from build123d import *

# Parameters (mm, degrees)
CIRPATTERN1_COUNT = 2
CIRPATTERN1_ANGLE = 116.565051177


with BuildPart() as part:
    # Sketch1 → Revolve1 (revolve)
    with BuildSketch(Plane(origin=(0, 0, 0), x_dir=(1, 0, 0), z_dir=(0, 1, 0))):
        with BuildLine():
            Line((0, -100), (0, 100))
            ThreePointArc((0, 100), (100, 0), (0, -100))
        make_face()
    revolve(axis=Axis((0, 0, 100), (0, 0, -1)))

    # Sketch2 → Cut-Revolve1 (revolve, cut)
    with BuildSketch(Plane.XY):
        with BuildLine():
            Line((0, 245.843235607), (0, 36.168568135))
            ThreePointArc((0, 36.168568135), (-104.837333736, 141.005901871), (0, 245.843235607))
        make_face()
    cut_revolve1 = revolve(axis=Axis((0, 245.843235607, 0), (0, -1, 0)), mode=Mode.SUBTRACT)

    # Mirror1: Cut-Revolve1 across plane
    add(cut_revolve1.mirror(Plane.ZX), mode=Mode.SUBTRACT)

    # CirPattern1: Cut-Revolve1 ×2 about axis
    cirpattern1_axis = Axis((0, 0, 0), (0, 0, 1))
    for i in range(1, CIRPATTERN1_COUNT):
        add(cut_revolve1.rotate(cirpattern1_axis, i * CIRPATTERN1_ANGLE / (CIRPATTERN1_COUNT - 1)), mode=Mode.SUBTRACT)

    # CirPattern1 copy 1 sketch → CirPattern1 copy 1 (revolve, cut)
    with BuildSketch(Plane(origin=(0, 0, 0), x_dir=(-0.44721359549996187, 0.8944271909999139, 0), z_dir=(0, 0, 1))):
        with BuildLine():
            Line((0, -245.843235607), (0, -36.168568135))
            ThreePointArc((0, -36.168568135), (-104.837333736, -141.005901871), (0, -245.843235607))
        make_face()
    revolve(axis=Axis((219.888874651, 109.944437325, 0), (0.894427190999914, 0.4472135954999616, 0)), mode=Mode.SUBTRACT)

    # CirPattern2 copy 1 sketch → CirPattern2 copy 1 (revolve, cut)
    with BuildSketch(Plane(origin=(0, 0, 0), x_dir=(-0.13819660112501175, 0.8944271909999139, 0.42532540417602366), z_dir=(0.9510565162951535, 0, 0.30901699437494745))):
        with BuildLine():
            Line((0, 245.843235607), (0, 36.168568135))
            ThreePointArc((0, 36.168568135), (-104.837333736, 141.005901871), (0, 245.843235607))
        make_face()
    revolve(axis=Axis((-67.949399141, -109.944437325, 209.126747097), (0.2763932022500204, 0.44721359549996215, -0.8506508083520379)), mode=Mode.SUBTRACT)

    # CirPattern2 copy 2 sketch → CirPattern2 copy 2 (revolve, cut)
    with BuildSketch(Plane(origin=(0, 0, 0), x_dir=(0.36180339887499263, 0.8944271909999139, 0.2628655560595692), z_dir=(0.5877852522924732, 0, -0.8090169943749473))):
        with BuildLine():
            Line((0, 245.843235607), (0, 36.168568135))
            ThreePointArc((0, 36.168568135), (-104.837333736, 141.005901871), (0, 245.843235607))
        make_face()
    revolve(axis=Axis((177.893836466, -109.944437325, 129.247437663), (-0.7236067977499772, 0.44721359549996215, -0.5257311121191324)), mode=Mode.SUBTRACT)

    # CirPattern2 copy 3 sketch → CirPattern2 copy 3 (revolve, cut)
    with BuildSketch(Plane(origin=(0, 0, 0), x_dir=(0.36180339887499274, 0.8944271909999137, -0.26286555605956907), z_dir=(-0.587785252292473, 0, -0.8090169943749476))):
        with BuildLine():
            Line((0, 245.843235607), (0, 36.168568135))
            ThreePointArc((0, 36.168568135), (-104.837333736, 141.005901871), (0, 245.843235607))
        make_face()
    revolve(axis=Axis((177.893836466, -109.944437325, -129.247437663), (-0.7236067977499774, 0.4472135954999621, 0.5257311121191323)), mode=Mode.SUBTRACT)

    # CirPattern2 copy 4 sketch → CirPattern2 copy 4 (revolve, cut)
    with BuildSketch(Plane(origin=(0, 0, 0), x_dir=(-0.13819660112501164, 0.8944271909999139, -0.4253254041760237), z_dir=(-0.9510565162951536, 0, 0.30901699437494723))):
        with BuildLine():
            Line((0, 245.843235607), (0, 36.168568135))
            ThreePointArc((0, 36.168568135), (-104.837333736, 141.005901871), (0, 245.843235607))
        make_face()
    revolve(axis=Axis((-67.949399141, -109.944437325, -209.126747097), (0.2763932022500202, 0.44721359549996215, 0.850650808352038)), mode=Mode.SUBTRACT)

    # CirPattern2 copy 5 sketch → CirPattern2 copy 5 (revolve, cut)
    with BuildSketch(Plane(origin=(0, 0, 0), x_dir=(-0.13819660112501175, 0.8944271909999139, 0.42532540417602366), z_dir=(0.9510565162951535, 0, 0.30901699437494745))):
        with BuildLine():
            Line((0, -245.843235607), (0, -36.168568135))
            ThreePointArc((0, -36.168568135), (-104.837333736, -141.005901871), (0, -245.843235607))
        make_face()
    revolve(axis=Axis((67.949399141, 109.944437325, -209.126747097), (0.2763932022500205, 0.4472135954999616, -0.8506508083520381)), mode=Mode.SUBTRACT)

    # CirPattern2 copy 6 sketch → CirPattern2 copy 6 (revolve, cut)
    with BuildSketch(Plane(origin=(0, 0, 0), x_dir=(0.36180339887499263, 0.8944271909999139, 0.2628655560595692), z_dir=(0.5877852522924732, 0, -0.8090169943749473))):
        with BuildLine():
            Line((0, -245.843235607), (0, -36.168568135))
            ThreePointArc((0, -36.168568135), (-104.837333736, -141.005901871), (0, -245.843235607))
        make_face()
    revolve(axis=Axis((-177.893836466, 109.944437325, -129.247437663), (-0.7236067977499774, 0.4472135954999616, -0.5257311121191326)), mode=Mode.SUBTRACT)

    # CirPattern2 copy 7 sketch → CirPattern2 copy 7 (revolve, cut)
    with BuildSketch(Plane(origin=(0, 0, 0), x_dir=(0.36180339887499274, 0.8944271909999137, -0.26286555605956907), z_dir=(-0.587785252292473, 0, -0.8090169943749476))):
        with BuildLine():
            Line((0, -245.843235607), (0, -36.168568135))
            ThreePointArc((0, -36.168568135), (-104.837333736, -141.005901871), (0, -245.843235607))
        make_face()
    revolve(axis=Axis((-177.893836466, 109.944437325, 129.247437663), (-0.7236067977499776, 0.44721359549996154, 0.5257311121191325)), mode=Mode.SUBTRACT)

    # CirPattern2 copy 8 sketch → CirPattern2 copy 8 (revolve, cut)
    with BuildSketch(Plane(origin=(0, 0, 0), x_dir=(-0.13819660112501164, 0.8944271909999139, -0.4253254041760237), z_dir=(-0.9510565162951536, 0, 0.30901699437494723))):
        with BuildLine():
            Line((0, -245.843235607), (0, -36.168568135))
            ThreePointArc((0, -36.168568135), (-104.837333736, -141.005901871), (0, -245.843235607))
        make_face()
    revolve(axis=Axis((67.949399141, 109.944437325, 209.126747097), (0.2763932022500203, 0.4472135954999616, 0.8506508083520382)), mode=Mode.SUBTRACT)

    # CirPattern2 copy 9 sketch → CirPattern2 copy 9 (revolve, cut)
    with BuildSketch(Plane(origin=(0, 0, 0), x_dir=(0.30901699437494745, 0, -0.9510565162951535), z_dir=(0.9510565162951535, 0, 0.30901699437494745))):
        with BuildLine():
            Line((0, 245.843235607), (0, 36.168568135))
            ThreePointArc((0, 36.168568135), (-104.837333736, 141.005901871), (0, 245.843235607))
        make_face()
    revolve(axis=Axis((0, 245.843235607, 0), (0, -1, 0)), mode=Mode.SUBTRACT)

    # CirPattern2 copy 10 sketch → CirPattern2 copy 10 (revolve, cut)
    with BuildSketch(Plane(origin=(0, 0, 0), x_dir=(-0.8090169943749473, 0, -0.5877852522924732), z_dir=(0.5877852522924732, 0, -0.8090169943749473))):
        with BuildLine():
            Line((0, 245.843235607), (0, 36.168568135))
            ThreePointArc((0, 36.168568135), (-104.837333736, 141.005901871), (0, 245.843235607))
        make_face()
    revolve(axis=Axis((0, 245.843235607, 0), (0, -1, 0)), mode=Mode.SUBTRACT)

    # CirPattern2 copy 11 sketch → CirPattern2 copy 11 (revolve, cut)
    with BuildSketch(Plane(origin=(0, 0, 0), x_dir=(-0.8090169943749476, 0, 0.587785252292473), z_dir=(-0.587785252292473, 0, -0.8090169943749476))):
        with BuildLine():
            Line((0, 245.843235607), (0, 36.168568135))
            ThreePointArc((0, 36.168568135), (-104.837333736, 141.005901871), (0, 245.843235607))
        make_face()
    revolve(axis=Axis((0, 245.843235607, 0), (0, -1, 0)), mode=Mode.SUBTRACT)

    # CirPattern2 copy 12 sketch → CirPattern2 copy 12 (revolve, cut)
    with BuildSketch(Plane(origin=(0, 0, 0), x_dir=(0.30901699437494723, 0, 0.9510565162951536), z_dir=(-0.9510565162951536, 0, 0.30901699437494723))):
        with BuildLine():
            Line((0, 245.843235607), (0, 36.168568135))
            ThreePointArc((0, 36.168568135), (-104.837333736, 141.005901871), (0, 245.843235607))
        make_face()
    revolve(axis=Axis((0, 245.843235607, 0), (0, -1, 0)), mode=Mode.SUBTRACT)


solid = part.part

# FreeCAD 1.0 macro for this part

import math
import FreeCAD as App
import Part
import Sketcher
from FreeCAD import Vector
Q = App.Units.Quantity

doc = App.newDocument("Part")
body = doc.addObject("PartDesign::Body", "Body")

# Sketch on XZ plane
sketch1 = body.newObject("Sketcher::SketchObject", "Sketch")
sketch1.AttachmentSupport = (doc.getObject("XZ_Plane"), [""])
sketch1.MapMode = "FlatFace"
sketch1.addGeometry([
    Part.LineSegment(Vector(0, -100, 0), Vector(0, 100, 0)),
    Part.ArcOfCircle(Part.Circle(Vector(0, 0, 0), Vector(0, 0, 1), 100), math.radians(-90), math.radians(90)),
], False)
sketch1.addConstraint([
    Sketcher.Constraint("Coincident", 0, 1, 1, 1),
    Sketcher.Constraint("Coincident", 1, 2, 0, 2),
    Sketcher.Constraint("Vertical", 0),
    Sketcher.Constraint("Coincident", 1, 3, -1, 1),
    Sketcher.Constraint("PointOnObject", 0, 1, -2),
    Sketcher.Constraint("Radius", 1, Q("100 mm")),
])
revolution = body.newObject("PartDesign::Revolution", "Revolution")
revolution.Profile = sketch1
revolution.ReferenceAxis = (sketch1, ["V_Axis"])
revolution.Angle = 360

# Sketch on XY plane
sketch2 = body.newObject("Sketcher::SketchObject", "Sketch001")
sketch2.AttachmentSupport = (doc.getObject("XY_Plane"), [""])
sketch2.MapMode = "FlatFace"
sketch2.addGeometry([
    Part.LineSegment(Vector(0, 36, 0), Vector(0, 246, 0)),
    Part.ArcOfCircle(Part.Circle(Vector(0, 141, 0), Vector(0, 0, 1), 105), math.radians(90), math.radians(270)),
], False)
sketch2.addConstraint([
    Sketcher.Constraint("Coincident", 0, 1, 1, 2),
    Sketcher.Constraint("Coincident", 1, 1, 0, 2),
    Sketcher.Constraint("Vertical", 0),
    Sketcher.Constraint("PointOnObject", 1, 3, -2),
    Sketcher.Constraint("PointOnObject", 0, 1, -2),
    Sketcher.Constraint("Radius", 1, Q("104.837334 mm")),
    Sketcher.Constraint("DistanceY", -1, 1, 1, 3, Q("141.005902 mm")),
])
groove = body.newObject("PartDesign::Groove", "Groove")
groove.Profile = sketch2
groove.ReferenceAxis = (sketch2, ["V_Axis"])
groove.Angle = 360
doc.recompute()

mirrored = body.newObject("PartDesign::Mirrored", "Mirrored")
mirrored.Originals = [groove]
mirrored.MirrorPlane = (doc.getObject("XZ_Plane"), [""])
body.Tip = mirrored
doc.recompute()

polarpattern = body.newObject("PartDesign::PolarPattern", "PolarPattern")
polarpattern.Originals = [groove]
polarpattern.Axis = (doc.getObject("Z_Axis"), [""])
polarpattern.Angle = 116.565051
polarpattern.Occurrences = 2
body.Tip = polarpattern

# Sketch on XY plane
sketch3 = body.newObject("Sketcher::SketchObject", "Sketch002")
sketch3.AttachmentSupport = (doc.getObject("XY_Plane"), [""])
sketch3.MapMode = "FlatFace"
sketch3.addGeometry([
    Part.LineSegment(Vector(220, 110, 0), Vector(32, 16, 0)),
    Part.ArcOfCircle(Part.Circle(Vector(126, 63, 0), Vector(0, 0, 1), 105), math.radians(-153), math.radians(27)),
], False)
sketch3.addGeometry(Part.LineSegment(Vector(32, 16, 0), Vector(220, 110, 0)), True)  # axis
sketch3.addConstraint([
    Sketcher.Constraint("Coincident", 0, 1, 1, 2),
    Sketcher.Constraint("Coincident", 1, 1, 0, 2),
    Sketcher.Constraint("Coincident", 2, 1, 1, 1),
    Sketcher.Constraint("Coincident", 2, 2, 0, 1),
    Sketcher.Constraint("Radius", 1, Q("104.837334 mm")),
    Sketcher.Constraint("DistanceX", -1, 1, 1, 1, Q("32.350151 mm")),
    Sketcher.Constraint("DistanceX", 1, 3, 0, 1, Q("93.769362 mm")),
    Sketcher.Constraint("DistanceX", 1, 1, 1, 3, Q("93.769362 mm")),
    Sketcher.Constraint("DistanceY", -1, 1, 1, 3, Q("63.059756 mm")),
])
groove2 = body.newObject("PartDesign::Groove", "Groove001")
groove2.Profile = sketch3
groove2.ReferenceAxis = (sketch3, ["Axis0"])
groove2.Angle = 360

# Sketch on an angled plane
sketch4 = body.newObject("Sketcher::SketchObject", "Sketch003")
sketch4.Placement = App.Placement(Vector(0, 0, 0), App.Rotation(Vector(-0.138196601, 0.894427191, 0.425325404), Vector(-0.276393202, -0.447213595, 0.850650808), Vector(0.951056516, 0, 0.309016994), "ZXY"))
sketch4.addGeometry([
    Part.LineSegment(Vector(0, 36, 0), Vector(0, 246, 0)),
    Part.ArcOfCircle(Part.Circle(Vector(0, 141, 0), Vector(0, 0, 1), 105), math.radians(90), math.radians(270)),
], False)
sketch4.addConstraint([
    Sketcher.Constraint("Coincident", 0, 1, 1, 2),
    Sketcher.Constraint("Coincident", 1, 1, 0, 2),
    Sketcher.Constraint("Vertical", 0),
    Sketcher.Constraint("PointOnObject", 1, 3, -2),
    Sketcher.Constraint("PointOnObject", 0, 1, -2),
    Sketcher.Constraint("Radius", 1, Q("104.837334 mm")),
    Sketcher.Constraint("DistanceY", -1, 1, 1, 3, Q("141.005902 mm")),
])
groove3 = body.newObject("PartDesign::Groove", "Groove002")
groove3.Profile = sketch4
groove3.ReferenceAxis = (sketch4, ["V_Axis"])
groove3.Angle = 360

# Sketch on an angled plane
sketch5 = body.newObject("Sketcher::SketchObject", "Sketch004")
sketch5.Placement = App.Placement(Vector(0, 0, 0), App.Rotation(Vector(0.361803399, 0.894427191, 0.262865556), Vector(0.723606797, -0.447213595, 0.525731112), Vector(0.587785252, 0, -0.809016994), "ZXY"))
sketch5.addGeometry([
    Part.LineSegment(Vector(0, 36, 0), Vector(0, 246, 0)),
    Part.ArcOfCircle(Part.Circle(Vector(0, 141, 0), Vector(0, 0, 1), 105), math.radians(90), math.radians(270)),
], False)
sketch5.addConstraint([
    Sketcher.Constraint("Coincident", 0, 1, 1, 2),
    Sketcher.Constraint("Coincident", 1, 1, 0, 2),
    Sketcher.Constraint("Vertical", 0),
    Sketcher.Constraint("PointOnObject", 1, 3, -2),
    Sketcher.Constraint("PointOnObject", 0, 1, -2),
    Sketcher.Constraint("Radius", 1, Q("104.837334 mm")),
    Sketcher.Constraint("DistanceY", -1, 1, 1, 3, Q("141.005902 mm")),
])
groove4 = body.newObject("PartDesign::Groove", "Groove003")
groove4.Profile = sketch5
groove4.ReferenceAxis = (sketch5, ["V_Axis"])
groove4.Angle = 360

# Sketch on an angled plane
sketch6 = body.newObject("Sketcher::SketchObject", "Sketch005")
sketch6.Placement = App.Placement(Vector(0, 0, 0), App.Rotation(Vector(0.361803399, 0.894427191, -0.262865556), Vector(0.723606797, -0.447213595, -0.525731112), Vector(-0.587785252, 0, -0.809016994), "ZXY"))
sketch6.addGeometry([
    Part.LineSegment(Vector(0, 36, 0), Vector(0, 246, 0)),
    Part.ArcOfCircle(Part.Circle(Vector(0, 141, 0), Vector(0, 0, 1), 105), math.radians(90), math.radians(270)),
], False)
sketch6.addConstraint([
    Sketcher.Constraint("Coincident", 0, 1, 1, 2),
    Sketcher.Constraint("Coincident", 1, 1, 0, 2),
    Sketcher.Constraint("Vertical", 0),
    Sketcher.Constraint("PointOnObject", 1, 3, -2),
    Sketcher.Constraint("PointOnObject", 0, 1, -2),
    Sketcher.Constraint("Radius", 1, Q("104.837334 mm")),
    Sketcher.Constraint("DistanceY", -1, 1, 1, 3, Q("141.005902 mm")),
])
groove5 = body.newObject("PartDesign::Groove", "Groove004")
groove5.Profile = sketch6
groove5.ReferenceAxis = (sketch6, ["V_Axis"])
groove5.Angle = 360

# Sketch on an angled plane
sketch7 = body.newObject("Sketcher::SketchObject", "Sketch006")
sketch7.Placement = App.Placement(Vector(0, 0, 0), App.Rotation(Vector(-0.138196601, 0.894427191, -0.425325404), Vector(-0.276393202, -0.447213595, -0.850650808), Vector(-0.951056516, 0, 0.309016994), "ZXY"))
sketch7.addGeometry([
    Part.LineSegment(Vector(0, 36, 0), Vector(0, 246, 0)),
    Part.ArcOfCircle(Part.Circle(Vector(0, 141, 0), Vector(0, 0, 1), 105), math.radians(90), math.radians(270)),
], False)
sketch7.addConstraint([
    Sketcher.Constraint("Coincident", 0, 1, 1, 2),
    Sketcher.Constraint("Coincident", 1, 1, 0, 2),
    Sketcher.Constraint("Vertical", 0),
    Sketcher.Constraint("PointOnObject", 1, 3, -2),
    Sketcher.Constraint("PointOnObject", 0, 1, -2),
    Sketcher.Constraint("Radius", 1, Q("104.837334 mm")),
    Sketcher.Constraint("DistanceY", -1, 1, 1, 3, Q("141.005902 mm")),
])
groove6 = body.newObject("PartDesign::Groove", "Groove005")
groove6.Profile = sketch7
groove6.ReferenceAxis = (sketch7, ["V_Axis"])
groove6.Angle = 360

# Sketch on an angled plane
sketch8 = body.newObject("Sketcher::SketchObject", "Sketch007")
sketch8.Placement = App.Placement(Vector(0, 0, 0), App.Rotation(Vector(-0.138196601, 0.894427191, 0.425325404), Vector(-0.276393202, -0.447213595, 0.850650808), Vector(0.951056516, 0, 0.309016994), "ZXY"))
sketch8.addGeometry([
    Part.LineSegment(Vector(0, -246, 0), Vector(0, -36, 0)),
    Part.ArcOfCircle(Part.Circle(Vector(0, -141, 0), Vector(0, 0, 1), 105), math.radians(90), math.radians(270)),
], False)
sketch8.addConstraint([
    Sketcher.Constraint("Coincident", 0, 1, 1, 2),
    Sketcher.Constraint("Coincident", 1, 1, 0, 2),
    Sketcher.Constraint("Vertical", 0),
    Sketcher.Constraint("PointOnObject", 1, 3, -2),
    Sketcher.Constraint("PointOnObject", 0, 1, -2),
    Sketcher.Constraint("Radius", 1, Q("104.837334 mm")),
    Sketcher.Constraint("DistanceY", 1, 3, -1, 1, Q("141.005902 mm")),
])
groove7 = body.newObject("PartDesign::Groove", "Groove006")
groove7.Profile = sketch8
groove7.ReferenceAxis = (sketch8, ["V_Axis"])
groove7.Angle = 360

# Sketch on an angled plane
sketch9 = body.newObject("Sketcher::SketchObject", "Sketch008")
sketch9.Placement = App.Placement(Vector(0, 0, 0), App.Rotation(Vector(0.361803399, 0.894427191, 0.262865556), Vector(0.723606797, -0.447213595, 0.525731112), Vector(0.587785252, 0, -0.809016994), "ZXY"))
sketch9.addGeometry([
    Part.LineSegment(Vector(0, -246, 0), Vector(0, -36, 0)),
    Part.ArcOfCircle(Part.Circle(Vector(0, -141, 0), Vector(0, 0, 1), 105), math.radians(90), math.radians(270)),
], False)
sketch9.addConstraint([
    Sketcher.Constraint("Coincident", 0, 1, 1, 2),
    Sketcher.Constraint("Coincident", 1, 1, 0, 2),
    Sketcher.Constraint("Vertical", 0),
    Sketcher.Constraint("PointOnObject", 1, 3, -2),
    Sketcher.Constraint("PointOnObject", 0, 1, -2),
    Sketcher.Constraint("Radius", 1, Q("104.837334 mm")),
    Sketcher.Constraint("DistanceY", 1, 3, -1, 1, Q("141.005902 mm")),
])
groove8 = body.newObject("PartDesign::Groove", "Groove007")
groove8.Profile = sketch9
groove8.ReferenceAxis = (sketch9, ["V_Axis"])
groove8.Angle = 360

# Sketch on an angled plane
sketch10 = body.newObject("Sketcher::SketchObject", "Sketch009")
sketch10.Placement = App.Placement(Vector(0, 0, 0), App.Rotation(Vector(0.361803399, 0.894427191, -0.262865556), Vector(0.723606797, -0.447213595, -0.525731112), Vector(-0.587785252, 0, -0.809016994), "ZXY"))
sketch10.addGeometry([
    Part.LineSegment(Vector(0, -246, 0), Vector(0, -36, 0)),
    Part.ArcOfCircle(Part.Circle(Vector(0, -141, 0), Vector(0, 0, 1), 105), math.radians(90), math.radians(270)),
], False)
sketch10.addConstraint([
    Sketcher.Constraint("Coincident", 0, 1, 1, 2),
    Sketcher.Constraint("Coincident", 1, 1, 0, 2),
    Sketcher.Constraint("Vertical", 0),
    Sketcher.Constraint("PointOnObject", 1, 3, -2),
    Sketcher.Constraint("PointOnObject", 0, 1, -2),
    Sketcher.Constraint("Radius", 1, Q("104.837334 mm")),
    Sketcher.Constraint("DistanceY", 1, 3, -1, 1, Q("141.005902 mm")),
])
groove9 = body.newObject("PartDesign::Groove", "Groove008")
groove9.Profile = sketch10
groove9.ReferenceAxis = (sketch10, ["V_Axis"])
groove9.Angle = 360

# Sketch on an angled plane
sketch11 = body.newObject("Sketcher::SketchObject", "Sketch010")
sketch11.Placement = App.Placement(Vector(0, 0, 0), App.Rotation(Vector(-0.138196601, 0.894427191, -0.425325404), Vector(-0.276393202, -0.447213595, -0.850650808), Vector(-0.951056516, 0, 0.309016994), "ZXY"))
sketch11.addGeometry([
    Part.LineSegment(Vector(0, -246, 0), Vector(0, -36, 0)),
    Part.ArcOfCircle(Part.Circle(Vector(0, -141, 0), Vector(0, 0, 1), 105), math.radians(90), math.radians(270)),
], False)
sketch11.addConstraint([
    Sketcher.Constraint("Coincident", 0, 1, 1, 2),
    Sketcher.Constraint("Coincident", 1, 1, 0, 2),
    Sketcher.Constraint("Vertical", 0),
    Sketcher.Constraint("PointOnObject", 1, 3, -2),
    Sketcher.Constraint("PointOnObject", 0, 1, -2),
    Sketcher.Constraint("Radius", 1, Q("104.837334 mm")),
    Sketcher.Constraint("DistanceY", 1, 3, -1, 1, Q("141.005902 mm")),
])
groove10 = body.newObject("PartDesign::Groove", "Groove009")
groove10.Profile = sketch11
groove10.ReferenceAxis = (sketch11, ["V_Axis"])
groove10.Angle = 360

# Sketch on an angled plane
sketch12 = body.newObject("Sketcher::SketchObject", "Sketch011")
sketch12.Placement = App.Placement(Vector(0, 0, 0), App.Rotation(Vector(0.309016994, 0, -0.951056516), Vector(0, 0.999999999, 0), Vector(0.951056516, 0, 0.309016994), "ZXY"))
sketch12.addGeometry([
    Part.LineSegment(Vector(0, 36, 0), Vector(0, 246, 0)),
    Part.ArcOfCircle(Part.Circle(Vector(0, 141, 0), Vector(0, 0, 1), 105), math.radians(90), math.radians(270)),
], False)
sketch12.addConstraint([
    Sketcher.Constraint("Coincident", 0, 1, 1, 2),
    Sketcher.Constraint("Coincident", 1, 1, 0, 2),
    Sketcher.Constraint("Vertical", 0),
    Sketcher.Constraint("PointOnObject", 1, 3, -2),
    Sketcher.Constraint("PointOnObject", 0, 1, -2),
    Sketcher.Constraint("Radius", 1, Q("104.837334 mm")),
    Sketcher.Constraint("DistanceY", -1, 1, 1, 3, Q("141.005902 mm")),
])
groove11 = body.newObject("PartDesign::Groove", "Groove010")
groove11.Profile = sketch12
groove11.ReferenceAxis = (sketch12, ["V_Axis"])
groove11.Angle = 360

# Sketch on an angled plane
sketch13 = body.newObject("Sketcher::SketchObject", "Sketch012")
sketch13.Placement = App.Placement(Vector(0, 0, 0), App.Rotation(Vector(-0.809016994, 0, -0.587785252), Vector(0, 0.999999999, 0), Vector(0.587785252, 0, -0.809016994), "ZXY"))
sketch13.addGeometry([
    Part.LineSegment(Vector(0, 36, 0), Vector(0, 246, 0)),
    Part.ArcOfCircle(Part.Circle(Vector(0, 141, 0), Vector(0, 0, 1), 105), math.radians(90), math.radians(270)),
], False)
sketch13.addConstraint([
    Sketcher.Constraint("Coincident", 0, 1, 1, 2),
    Sketcher.Constraint("Coincident", 1, 1, 0, 2),
    Sketcher.Constraint("Vertical", 0),
    Sketcher.Constraint("PointOnObject", 1, 3, -2),
    Sketcher.Constraint("PointOnObject", 0, 1, -2),
    Sketcher.Constraint("Radius", 1, Q("104.837334 mm")),
    Sketcher.Constraint("DistanceY", -1, 1, 1, 3, Q("141.005902 mm")),
])
groove12 = body.newObject("PartDesign::Groove", "Groove011")
groove12.Profile = sketch13
groove12.ReferenceAxis = (sketch13, ["V_Axis"])
groove12.Angle = 360

# Sketch on an angled plane
sketch14 = body.newObject("Sketcher::SketchObject", "Sketch013")
sketch14.Placement = App.Placement(Vector(0, 0, 0), App.Rotation(Vector(-0.809016994, 0, 0.587785252), Vector(0, 0.999999999, 0), Vector(-0.587785252, 0, -0.809016994), "ZXY"))
sketch14.addGeometry([
    Part.LineSegment(Vector(0, 36, 0), Vector(0, 246, 0)),
    Part.ArcOfCircle(Part.Circle(Vector(0, 141, 0), Vector(0, 0, 1), 105), math.radians(90), math.radians(270)),
], False)
sketch14.addConstraint([
    Sketcher.Constraint("Coincident", 0, 1, 1, 2),
    Sketcher.Constraint("Coincident", 1, 1, 0, 2),
    Sketcher.Constraint("Vertical", 0),
    Sketcher.Constraint("PointOnObject", 1, 3, -2),
    Sketcher.Constraint("PointOnObject", 0, 1, -2),
    Sketcher.Constraint("Radius", 1, Q("104.837334 mm")),
    Sketcher.Constraint("DistanceY", -1, 1, 1, 3, Q("141.005902 mm")),
])
groove13 = body.newObject("PartDesign::Groove", "Groove012")
groove13.Profile = sketch14
groove13.ReferenceAxis = (sketch14, ["V_Axis"])
groove13.Angle = 360

# Sketch on an angled plane
sketch15 = body.newObject("Sketcher::SketchObject", "Sketch014")
sketch15.Placement = App.Placement(Vector(0, 0, 0), App.Rotation(Vector(0.309016994, 0, 0.951056516), Vector(0, 0.999999999, 0), Vector(-0.951056516, 0, 0.309016994), "ZXY"))
sketch15.addGeometry([
    Part.LineSegment(Vector(0, 36, 0), Vector(0, 246, 0)),
    Part.ArcOfCircle(Part.Circle(Vector(0, 141, 0), Vector(0, 0, 1), 105), math.radians(90), math.radians(270)),
], False)
sketch15.addConstraint([
    Sketcher.Constraint("Coincident", 0, 1, 1, 2),
    Sketcher.Constraint("Coincident", 1, 1, 0, 2),
    Sketcher.Constraint("Vertical", 0),
    Sketcher.Constraint("PointOnObject", 1, 3, -2),
    Sketcher.Constraint("PointOnObject", 0, 1, -2),
    Sketcher.Constraint("Radius", 1, Q("104.837334 mm")),
    Sketcher.Constraint("DistanceY", -1, 1, 1, 3, Q("141.005902 mm")),
])
groove14 = body.newObject("PartDesign::Groove", "Groove013")
groove14.Profile = sketch15
groove14.ReferenceAxis = (sketch15, ["V_Axis"])
groove14.Angle = 360

doc.recompute()
